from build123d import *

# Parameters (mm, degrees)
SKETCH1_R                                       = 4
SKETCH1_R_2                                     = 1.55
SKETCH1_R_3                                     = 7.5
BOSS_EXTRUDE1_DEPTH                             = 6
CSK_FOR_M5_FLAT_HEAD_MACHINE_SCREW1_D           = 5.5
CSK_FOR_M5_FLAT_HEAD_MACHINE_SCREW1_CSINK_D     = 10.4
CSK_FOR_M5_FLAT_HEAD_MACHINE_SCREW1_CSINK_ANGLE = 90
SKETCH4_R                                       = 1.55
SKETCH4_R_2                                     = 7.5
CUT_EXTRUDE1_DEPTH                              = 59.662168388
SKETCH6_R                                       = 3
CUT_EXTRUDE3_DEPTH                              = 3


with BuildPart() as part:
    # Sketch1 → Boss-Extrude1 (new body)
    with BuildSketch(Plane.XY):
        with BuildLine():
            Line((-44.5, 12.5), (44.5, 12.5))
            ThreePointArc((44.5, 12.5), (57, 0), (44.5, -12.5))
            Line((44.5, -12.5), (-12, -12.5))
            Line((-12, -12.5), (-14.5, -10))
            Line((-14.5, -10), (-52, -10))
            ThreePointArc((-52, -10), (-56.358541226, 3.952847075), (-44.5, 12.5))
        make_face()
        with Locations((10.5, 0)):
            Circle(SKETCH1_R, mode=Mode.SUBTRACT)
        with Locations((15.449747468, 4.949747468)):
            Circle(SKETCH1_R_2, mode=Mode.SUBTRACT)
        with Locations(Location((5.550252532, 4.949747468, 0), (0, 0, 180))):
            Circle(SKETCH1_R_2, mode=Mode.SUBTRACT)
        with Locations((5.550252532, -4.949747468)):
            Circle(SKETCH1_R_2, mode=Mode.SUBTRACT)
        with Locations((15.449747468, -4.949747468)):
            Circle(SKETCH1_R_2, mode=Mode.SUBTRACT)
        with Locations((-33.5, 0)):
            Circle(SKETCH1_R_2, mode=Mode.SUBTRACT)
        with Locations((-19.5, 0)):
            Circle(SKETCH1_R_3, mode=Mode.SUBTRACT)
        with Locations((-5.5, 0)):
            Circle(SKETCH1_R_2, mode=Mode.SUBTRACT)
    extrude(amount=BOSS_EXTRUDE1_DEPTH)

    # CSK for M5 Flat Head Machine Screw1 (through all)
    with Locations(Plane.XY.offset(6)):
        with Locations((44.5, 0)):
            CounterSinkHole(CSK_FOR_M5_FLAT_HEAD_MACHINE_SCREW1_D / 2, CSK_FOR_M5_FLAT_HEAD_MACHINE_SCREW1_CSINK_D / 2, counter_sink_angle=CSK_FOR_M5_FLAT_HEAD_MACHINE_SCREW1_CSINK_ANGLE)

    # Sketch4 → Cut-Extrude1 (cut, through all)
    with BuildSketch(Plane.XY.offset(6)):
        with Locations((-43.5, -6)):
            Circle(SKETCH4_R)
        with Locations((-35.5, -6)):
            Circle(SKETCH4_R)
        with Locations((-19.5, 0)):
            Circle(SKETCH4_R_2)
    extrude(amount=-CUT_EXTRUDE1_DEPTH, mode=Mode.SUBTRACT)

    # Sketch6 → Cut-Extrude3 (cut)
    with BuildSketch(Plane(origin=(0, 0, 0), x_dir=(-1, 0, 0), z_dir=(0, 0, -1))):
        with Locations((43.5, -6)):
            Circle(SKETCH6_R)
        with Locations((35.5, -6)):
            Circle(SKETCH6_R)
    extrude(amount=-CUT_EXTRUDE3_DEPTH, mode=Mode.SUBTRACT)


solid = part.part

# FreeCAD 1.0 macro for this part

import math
import FreeCAD as App
import Part
import Sketcher
Q = App.Units.Quantity

doc = App.newDocument("Part")
body = doc.addObject("PartDesign::Body", "Body")

# Sketch on XY plane
sketch1 = body.newObject("Sketcher::SketchObject", "Sketch")
sketch1.AttachmentSupport = (doc.getObject("XY_Plane"), [""])
sketch1.MapMode = "FlatFace"
sketch1.addGeometry([
    Part.LineSegment(App.Vector(44.5, 12.5, 0), App.Vector(-44.5, 12.5, 0)),  # 0
    Part.ArcOfCircle(Part.Circle(App.Vector(-44.5, 0, 0), App.Vector(0, 0, 1), 12.5), math.radians(90), math.radians(233)),  # 1
    Part.LineSegment(App.Vector(-52, -10, 0), App.Vector(-14.5, -10, 0)),  # 2
    Part.LineSegment(App.Vector(-14.5, -10, 0), App.Vector(-12, -12.5, 0)),  # 3
    Part.LineSegment(App.Vector(-12, -12.5, 0), App.Vector(44.5, -12.5, 0)),  # 4
    Part.ArcOfCircle(Part.Circle(App.Vector(44.5, 0, 0), App.Vector(0, 0, 1), 12.5), math.radians(-90), math.radians(90)),  # 5
    Part.Circle(App.Vector(15.4, -4.9, 0), App.Vector(0, 0, 1), 1.6),  # 6
    Part.Circle(App.Vector(5.6, -4.9, 0), App.Vector(0, 0, 1), 1.6),  # 7
    Part.Circle(App.Vector(10.5, 0, 0), App.Vector(0, 0, 1), 4),  # 8
    Part.Circle(App.Vector(-5.5, 0, 0), App.Vector(0, 0, 1), 1.6),  # 9
    Part.Circle(App.Vector(15.4, 4.9, 0), App.Vector(0, 0, 1), 1.6),  # 10
    Part.Circle(App.Vector(5.6, 4.9, 0), App.Vector(0, 0, 1), 1.6),  # 11
    Part.Circle(App.Vector(-19.5, 0, 0), App.Vector(0, 0, 1), 7.5),  # 12
    Part.Circle(App.Vector(-33.5, 0, 0), App.Vector(0, 0, 1), 1.6),  # 13
], False)
sketch1.addConstraint([
    Sketcher.Constraint("Tangent", 0, 2, 1, 1),
    Sketcher.Constraint("Coincident", 1, 2, 2, 1),
    Sketcher.Constraint("Coincident", 2, 2, 3, 1),
    Sketcher.Constraint("Coincident", 3, 2, 4, 1),
    Sketcher.Constraint("Tangent", 4, 2, 5, 1),
    Sketcher.Constraint("Tangent", 5, 2, 0, 1),
    Sketcher.Constraint("Horizontal", 0),
    Sketcher.Constraint("Horizontal", 2),
    Sketcher.Constraint("Horizontal", 4),
    Sketcher.Constraint("Equal", 1, 5),
    Sketcher.Constraint("Equal", 6, 7),
    Sketcher.Constraint("Equal", 7, 9),
    Sketcher.Constraint("Equal", 9, 10),
    Sketcher.Constraint("Equal", 10, 11),
    Sketcher.Constraint("Equal", 11, 13),
    Sketcher.Constraint("Symmetric", 1, 3, 5, 3, -1, 1),
    Sketcher.Constraint("Symmetric", 6, 3, 10, 3, -1),
    Sketcher.Constraint("Symmetric", 7, 3, 11, 3, -1),
    Sketcher.Constraint("PointOnObject", 8, 3, -1),
    Sketcher.Constraint("PointOnObject", 9, 3, -1),
    Sketcher.Constraint("PointOnObject", 12, 3, -1),
    Sketcher.Constraint("PointOnObject", 13, 3, -1),
    Sketcher.Constraint("Horizontal", 6, 3, 7, 3),
    Sketcher.Constraint("Diameter", 8, 8.0),
    Sketcher.Constraint("Diameter", 12, 15.0),
    Sketcher.Constraint("Diameter", 6, 3.1),
    Sketcher.Constraint("Radius", 1, 12.5),
    Sketcher.Constraint("DistanceX", 0, 2, 0, 1, 89.0),
    Sketcher.Constraint("Angle", 3, Q("-45 deg")),
    Sketcher.Constraint("DistanceX", 2, 1, 2, 2, 37.5),
    Sketcher.Constraint("DistanceX", 4, 1, 4, 2, 56.5),
    Sketcher.Constraint("DistanceX", 8, 3, 5, 3, 34.0),
    Sketcher.Constraint("DistanceX", 9, 3, 8, 3, 16.0),
    Sketcher.Constraint("DistanceX", 12, 3, 9, 3, 14.0),
    Sketcher.Constraint("DistanceX", 1, 3, 13, 3, 11.0),
    Sketcher.Constraint("DistanceX", -1, 1, 6, 3, 15.449747),
    Sketcher.Constraint("DistanceY", 6, 3, -1, 1, 4.949747),
    Sketcher.Constraint("DistanceX", -1, 1, 7, 3, 5.550253),
])
pad1 = body.newObject("PartDesign::Pad", "Pad")
pad1.Profile = sketch1
pad1.Length = 6

# Sketch on XY plane
sketch2 = body.newObject("Sketcher::SketchObject", "Sketch001")
sketch2.AttachmentSupport = (doc.getObject("XY_Plane"), [""])
sketch2.MapMode = "FlatFace"
sketch2.AttachmentOffset = App.Placement(App.Vector(0, 0, 6), App.Rotation())
sketch2.addGeometry(Part.Circle(App.Vector(44.5, 0, 0), App.Vector(0, 0, 1), 2.8), False)
sketch2.addConstraint([
    Sketcher.Constraint("PointOnObject", 0, 3, -1),
    Sketcher.Constraint("Diameter", 0, 5.5),
    Sketcher.Constraint("DistanceX", -1, 1, 0, 3, 44.5),
])
doc.recompute()
hole = body.newObject("PartDesign::Hole", "Hole")
hole.Profile = sketch2
hole.ThreadType = "None"
hole.Diameter = 5.5
hole.DepthType = "ThroughAll"
hole.HoleCutType = "Countersink"
hole.HoleCutDiameter = 10.4
hole.HoleCutCountersinkAngle = 90

# Sketch on XY plane
sketch3 = body.newObject("Sketcher::SketchObject", "Sketch002")
sketch3.AttachmentSupport = (doc.getObject("XY_Plane"), [""])
sketch3.MapMode = "FlatFace"
sketch3.AttachmentOffset = App.Placement(App.Vector(0, 0, 6), App.Rotation())
sketch3.addGeometry([
    Part.Circle(App.Vector(-43.5, -6, 0), App.Vector(0, 0, 1), 1.6),
    Part.Circle(App.Vector(-35.5, -6, 0), App.Vector(0, 0, 1), 1.6),
    Part.Circle(App.Vector(-19.5, 0, 0), App.Vector(0, 0, 1), 7.5),
], False)
sketch3.addConstraint([
    Sketcher.Constraint("Equal", 0, 1),
    Sketcher.Constraint("PointOnObject", 2, 3, -1),
    Sketcher.Constraint("Horizontal", 0, 3, 1, 3),
    Sketcher.Constraint("Diameter", 2, 15.0),
    Sketcher.Constraint("Diameter", 0, 3.1),
    Sketcher.Constraint("DistanceY", 0, 3, -1, 1, 6.0),
    Sketcher.Constraint("DistanceX", 0, 3, 1, 3, 8.0),
    Sketcher.Constraint("DistanceX", 1, 3, 2, 3, 16.0),
    Sketcher.Constraint("DistanceX", 0, 3, -1, 1, 43.5),
])
pocket1 = body.newObject("PartDesign::Pocket", "Pocket")
pocket1.Profile = sketch3
pocket1.Type = "ThroughAll"

# Sketch on XY plane
sketch4 = body.newObject("Sketcher::SketchObject", "Sketch003")
sketch4.AttachmentSupport = (doc.getObject("XY_Plane"), [""])
sketch4.MapMode = "FlatFace"
sketch4.addGeometry([
    Part.Circle(App.Vector(-43.5, -6, 0), App.Vector(0, 0, 1), 3),
    Part.Circle(App.Vector(-35.5, -6, 0), App.Vector(0, 0, 1), 3),
], False)
sketch4.addConstraint([
    Sketcher.Constraint("Equal", 0, 1),
    Sketcher.Constraint("Horizontal", 0, 3, 1, 3),
    Sketcher.Constraint("Diameter", 0, 6.0),
    Sketcher.Constraint("DistanceY", 0, 3, -1, 1, 6.0),
    Sketcher.Constraint("DistanceX", 0, 3, 1, 3, 8.0),
    Sketcher.Constraint("DistanceX", 0, 3, -1, 1, 43.5),
])
pocket2 = body.newObject("PartDesign::Pocket", "Pocket001")
pocket2.Profile = sketch4
pocket2.Length = 3
pocket2.Reversed = True

doc.recompute()
